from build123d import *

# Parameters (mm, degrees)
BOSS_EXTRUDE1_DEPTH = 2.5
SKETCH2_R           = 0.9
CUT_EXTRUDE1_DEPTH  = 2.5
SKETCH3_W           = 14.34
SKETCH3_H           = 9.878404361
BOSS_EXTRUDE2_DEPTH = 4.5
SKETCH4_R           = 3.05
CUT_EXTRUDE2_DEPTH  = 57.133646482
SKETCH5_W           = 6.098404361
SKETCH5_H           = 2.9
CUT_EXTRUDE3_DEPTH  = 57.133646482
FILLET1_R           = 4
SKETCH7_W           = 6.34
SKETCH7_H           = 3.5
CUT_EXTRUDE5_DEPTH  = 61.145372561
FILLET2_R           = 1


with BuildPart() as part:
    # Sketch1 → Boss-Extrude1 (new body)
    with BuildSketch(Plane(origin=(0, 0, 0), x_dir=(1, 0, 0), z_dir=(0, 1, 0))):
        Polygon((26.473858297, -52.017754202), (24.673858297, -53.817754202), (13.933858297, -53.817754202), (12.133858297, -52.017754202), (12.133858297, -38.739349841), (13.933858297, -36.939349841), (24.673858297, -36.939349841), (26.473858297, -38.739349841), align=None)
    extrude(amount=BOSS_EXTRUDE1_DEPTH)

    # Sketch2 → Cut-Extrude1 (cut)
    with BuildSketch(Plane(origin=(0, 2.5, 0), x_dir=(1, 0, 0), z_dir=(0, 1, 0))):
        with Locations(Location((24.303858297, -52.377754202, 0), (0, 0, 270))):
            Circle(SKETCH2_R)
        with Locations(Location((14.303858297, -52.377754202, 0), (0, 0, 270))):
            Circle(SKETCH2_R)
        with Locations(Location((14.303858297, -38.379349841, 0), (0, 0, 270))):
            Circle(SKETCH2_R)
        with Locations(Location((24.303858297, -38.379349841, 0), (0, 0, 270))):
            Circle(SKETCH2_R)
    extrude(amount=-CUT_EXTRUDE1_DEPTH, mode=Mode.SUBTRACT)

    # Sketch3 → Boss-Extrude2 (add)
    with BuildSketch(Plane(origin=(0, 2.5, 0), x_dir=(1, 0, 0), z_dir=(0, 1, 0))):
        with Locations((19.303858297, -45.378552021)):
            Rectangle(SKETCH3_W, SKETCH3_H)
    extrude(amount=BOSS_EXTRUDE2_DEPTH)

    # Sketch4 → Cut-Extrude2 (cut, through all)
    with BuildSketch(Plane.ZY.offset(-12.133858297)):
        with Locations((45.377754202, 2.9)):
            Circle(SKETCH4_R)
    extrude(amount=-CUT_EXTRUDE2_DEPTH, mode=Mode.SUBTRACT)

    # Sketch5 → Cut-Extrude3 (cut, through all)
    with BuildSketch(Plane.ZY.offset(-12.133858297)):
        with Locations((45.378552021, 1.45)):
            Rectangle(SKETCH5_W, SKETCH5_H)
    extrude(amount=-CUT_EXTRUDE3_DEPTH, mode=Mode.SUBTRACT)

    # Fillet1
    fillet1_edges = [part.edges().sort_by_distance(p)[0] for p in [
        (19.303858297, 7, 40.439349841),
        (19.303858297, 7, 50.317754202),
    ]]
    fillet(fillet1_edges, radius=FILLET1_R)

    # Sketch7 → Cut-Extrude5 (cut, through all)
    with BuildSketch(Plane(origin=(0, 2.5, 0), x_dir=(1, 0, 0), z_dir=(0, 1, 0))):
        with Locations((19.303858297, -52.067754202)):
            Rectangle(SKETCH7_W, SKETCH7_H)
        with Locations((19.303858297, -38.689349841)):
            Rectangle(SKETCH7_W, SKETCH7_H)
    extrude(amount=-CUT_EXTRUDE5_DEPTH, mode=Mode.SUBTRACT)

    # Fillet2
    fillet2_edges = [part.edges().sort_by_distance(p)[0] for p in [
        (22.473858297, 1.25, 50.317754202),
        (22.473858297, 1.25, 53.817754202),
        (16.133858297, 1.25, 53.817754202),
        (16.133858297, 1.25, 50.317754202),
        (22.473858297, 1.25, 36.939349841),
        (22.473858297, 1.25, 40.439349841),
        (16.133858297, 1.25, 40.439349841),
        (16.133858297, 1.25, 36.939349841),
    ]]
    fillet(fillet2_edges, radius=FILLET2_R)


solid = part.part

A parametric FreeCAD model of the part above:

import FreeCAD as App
import Part
import Sketcher

V = App.Vector
Q = App.Units.Quantity


def edges_at(feature, points):
    """Names of the edges that pass closest to the given points."""
    edges = feature.Shape.Edges
    near = lambda p: min(range(len(edges)), key=lambda i: edges[i].distToShape(Part.Vertex(*p))[0])
    return sorted({f"Edge{near(p) + 1}" for p in points})

doc = App.newDocument("Part")
body = doc.addObject("PartDesign::Body", "Body")

# Sketch on XZ plane
sketch1 = doc.addObject("Sketcher::SketchObject", "Sketch")
body.addObject(sketch1)
sketch1.AttachmentSupport = (doc.XZ_Plane, [""])
sketch1.MapMode = "FlatFace"
sketch1.addGeometry(Part.LineSegment(V(24.7, 53.8, 0), V(26.5, 52, 0)), False)
sketch1.addGeometry(Part.LineSegment(V(26.5, 52, 0), V(26.5, 38.7, 0)), False)
sketch1.addGeometry(Part.LineSegment(V(26.5, 38.7, 0), V(24.7, 36.9, 0)), False)
sketch1.addGeometry(Part.LineSegment(V(24.7, 36.9, 0), V(13.9, 36.9, 0)), False)
sketch1.addGeometry(Part.LineSegment(V(13.9, 36.9, 0), V(12.1, 38.7, 0)), False)
sketch1.addGeometry(Part.LineSegment(V(12.1, 38.7, 0), V(12.1, 52, 0)), False)
sketch1.addGeometry(Part.LineSegment(V(12.1, 52, 0), V(13.9, 53.8, 0)), False)
sketch1.addGeometry(Part.LineSegment(V(13.9, 53.8, 0), V(24.7, 53.8, 0)), False)
sketch1.addConstraint(Sketcher.Constraint("Coincident", 0, 2, 1, 1))
sketch1.addConstraint(Sketcher.Constraint("Coincident", 1, 2, 2, 1))
sketch1.addConstraint(Sketcher.Constraint("Coincident", 2, 2, 3, 1))
sketch1.addConstraint(Sketcher.Constraint("Coincident", 3, 2, 4, 1))
sketch1.addConstraint(Sketcher.Constraint("Coincident", 4, 2, 5, 1))
sketch1.addConstraint(Sketcher.Constraint("Coincident", 5, 2, 6, 1))
sketch1.addConstraint(Sketcher.Constraint("Coincident", 6, 2, 7, 1))
sketch1.addConstraint(Sketcher.Constraint("Coincident", 7, 2, 0, 1))
sketch1.addConstraint(Sketcher.Constraint("Vertical", 1))
sketch1.addConstraint(Sketcher.Constraint("Horizontal", 3))
sketch1.addConstraint(Sketcher.Constraint("Vertical", 5))
sketch1.addConstraint(Sketcher.Constraint("Horizontal", 7))
sketch1.addConstraint(Sketcher.Constraint("Perpendicular", 0, 2))
sketch1.addConstraint(Sketcher.Constraint("Perpendicular", 2, 4))
sketch1.addConstraint(Sketcher.Constraint("Perpendicular", 4, 6))
sketch1.addConstraint(Sketcher.Constraint("Horizontal", 1, 2, 4, 2))
sketch1.addConstraint(Sketcher.Constraint("Horizontal", 0, 2, 5, 2))
sketch1.addConstraint(Sketcher.Constraint("Vertical", 3, 2, 6, 2))
sketch1.addConstraint(Sketcher.Constraint("Vertical", 2, 2, 7, 2))
sketch1.addConstraint(Sketcher.Constraint("DistanceX", 3, 2, 3, 1, Q("10.74 mm")))
sketch1.addConstraint(Sketcher.Constraint("DistanceX", 2, 2, 1, 2, Q("1.8 mm")))
sketch1.addConstraint(Sketcher.Constraint("DistanceY", 1, 2, 1, 1, Q("13.278404 mm")))
sketch1.addConstraint(Sketcher.Constraint("DistanceX", -1, 1, 0, 2, Q("26.473858 mm")))
sketch1.addConstraint(Sketcher.Constraint("DistanceY", -1, 1, 1, 2, Q("38.73935 mm")))
pad1 = doc.addObject("PartDesign::Pad", "Pad")
body.addObject(pad1)
pad1.Profile = sketch1
pad1.Length = 2.5
pad1.Reversed = True

# Sketch on XZ plane
sketch2 = doc.addObject("Sketcher::SketchObject", "Sketch001")
body.addObject(sketch2)
sketch2.AttachmentSupport = (doc.XZ_Plane, [""])
sketch2.MapMode = "FlatFace"
sketch2.AttachmentOffset = App.Placement(V(0, 0, -2.5), App.Rotation())
sketch2.addGeometry(Part.Circle(V(24.3, 52.4, 0), V(0, 0, 1), 0.9), False)
sketch2.addGeometry(Part.Circle(V(14.3, 52.4, 0), V(0, 0, 1), 0.9), False)
sketch2.addGeometry(Part.Circle(V(14.3, 38.4, 0), V(0, 0, 1), 0.9), False)
sketch2.addGeometry(Part.Circle(V(24.3, 38.4, 0), V(0, 0, 1), 0.9), False)
sketch2.addConstraint(Sketcher.Constraint("Equal", 0, 1))
sketch2.addConstraint(Sketcher.Constraint("Equal", 1, 2))
sketch2.addConstraint(Sketcher.Constraint("Equal", 2, 3))
sketch2.addConstraint(Sketcher.Constraint("Horizontal", 0, 3, 1, 3))
sketch2.addConstraint(Sketcher.Constraint("Horizontal", 2, 3, 3, 3))
sketch2.addConstraint(Sketcher.Constraint("Vertical", 1, 3, 2, 3))
sketch2.addConstraint(Sketcher.Constraint("Vertical", 0, 3, 3, 3))
sketch2.addConstraint(Sketcher.Constraint("Diameter", 0, Q("1.8 mm")))
sketch2.addConstraint(Sketcher.Constraint("DistanceX", 1, 3, 0, 3, Q("10 mm")))
sketch2.addConstraint(Sketcher.Constraint("DistanceX", -1, 1, 0, 3, Q("24.303858 mm")))
sketch2.addConstraint(Sketcher.Constraint("DistanceY", -1, 1, 2, 3, Q("38.37935 mm")))
sketch2.addConstraint(Sketcher.Constraint("DistanceY", -1, 1, 0, 3, Q("52.377754 mm")))
pocket1 = doc.addObject("PartDesign::Pocket", "Pocket")
body.addObject(pocket1)
pocket1.Profile = sketch2
pocket1.Length = 2.5
pocket1.Reversed = True

# Sketch on XZ plane
sketch3 = doc.addObject("Sketcher::SketchObject", "Sketch002")
body.addObject(sketch3)
sketch3.AttachmentSupport = (doc.XZ_Plane, [""])
sketch3.MapMode = "FlatFace"
sketch3.AttachmentOffset = App.Placement(V(0, 0, -2.5), App.Rotation())
sketch3.addGeometry(Part.LineSegment(V(12, 40, 0), V(12, 50, 0)), False)
sketch3.addGeometry(Part.LineSegment(V(12, 50, 0), V(26, 50, 0)), False)
sketch3.addGeometry(Part.LineSegment(V(26, 50, 0), V(26, 40, 0)), False)
sketch3.addGeometry(Part.LineSegment(V(26, 40, 0), V(12, 40, 0)), False)
sketch3.addConstraint(Sketcher.Constraint("Coincident", 0, 2, 1, 1))
sketch3.addConstraint(Sketcher.Constraint("Coincident", 1, 2, 2, 1))
sketch3.addConstraint(Sketcher.Constraint("Coincident", 2, 2, 3, 1))
sketch3.addConstraint(Sketcher.Constraint("Coincident", 3, 2, 0, 1))
sketch3.addConstraint(Sketcher.Constraint("Vertical", 0))
sketch3.addConstraint(Sketcher.Constraint("Horizontal", 1))
sketch3.addConstraint(Sketcher.Constraint("Vertical", 2))
sketch3.addConstraint(Sketcher.Constraint("Horizontal", 3))
sketch3.addConstraint(Sketcher.Constraint("DistanceX", 1, 1, 1, 2, Q("14.34 mm")))
sketch3.addConstraint(Sketcher.Constraint("DistanceY", 0, 1, 0, 2, Q("9.878404 mm")))
sketch3.addConstraint(Sketcher.Constraint("DistanceX", -1, 1, 0, 2, Q("12.133858 mm")))
sketch3.addConstraint(Sketcher.Constraint("DistanceY", -1, 1, 2, 2, Q("40.43935 mm")))
pad2 = doc.addObject("PartDesign::Pad", "Pad001")
body.addObject(pad2)
pad2.Profile = sketch3
pad2.Length = 4.5
pad2.Reversed = True

# Sketch on YZ plane
sketch4 = doc.addObject("Sketcher::SketchObject", "Sketch003")
body.addObject(sketch4)
sketch4.AttachmentSupport = (doc.YZ_Plane, [""])
sketch4.MapMode = "FlatFace"
sketch4.AttachmentOffset = App.Placement(V(0, 0, 12.133858), App.Rotation())
sketch4.addGeometry(Part.Circle(V(2.9, 45.4, 0), V(0, 0, 1), 3), False)
sketch4.addConstraint(Sketcher.Constraint("Diameter", 0, Q("6.1 mm")))
sketch4.addConstraint(Sketcher.Constraint("DistanceX", -1, 1, 0, 3, Q("2.9 mm")))
sketch4.addConstraint(Sketcher.Constraint("DistanceY", -1, 1, 0, 3, Q("45.377754 mm")))
pocket2 = doc.addObject("PartDesign::Pocket", "Pocket001")
body.addObject(pocket2)
pocket2.Profile = sketch4
pocket2.Type = "ThroughAll"
pocket2.Reversed = True

# Sketch on YZ plane
sketch5 = doc.addObject("Sketcher::SketchObject", "Sketch004")
body.addObject(sketch5)
sketch5.AttachmentSupport = (doc.YZ_Plane, [""])
sketch5.MapMode = "FlatFace"
sketch5.AttachmentOffset = App.Placement(V(0, 0, 12.133858), App.Rotation())
sketch5.addGeometry(Part.LineSegment(V(2.9, 42.3, 0), V(0, 42.3, 0)), False)
sketch5.addGeometry(Part.LineSegment(V(0, 42.3, 0), V(0, 48.4, 0)), False)
sketch5.addGeometry(Part.LineSegment(V(0, 48.4, 0), V(2.9, 48.4, 0)), False)
sketch5.addGeometry(Part.LineSegment(V(2.9, 48.4, 0), V(2.9, 42.3, 0)), False)
sketch5.addConstraint(Sketcher.Constraint("Coincident", 0, 2, 1, 1))
sketch5.addConstraint(Sketcher.Constraint("Coincident", 1, 2, 2, 1))
sketch5.addConstraint(Sketcher.Constraint("Coincident", 2, 2, 3, 1))
sketch5.addConstraint(Sketcher.Constraint("Coincident", 3, 2, 0, 1))
sketch5.addConstraint(Sketcher.Constraint("Horizontal", 0))
sketch5.addConstraint(Sketcher.Constraint("Vertical", 1))
sketch5.addConstraint(Sketcher.Constraint("Horizontal", 2))
sketch5.addConstraint(Sketcher.Constraint("Vertical", 3))
sketch5.addConstraint(Sketcher.Constraint("PointOnObject", 0, 2, -2))
sketch5.addConstraint(Sketcher.Constraint("DistanceX", 0, 2, 0, 1, Q("2.9 mm")))
sketch5.addConstraint(Sketcher.Constraint("DistanceY", 1, 1, 1, 2, Q("6.098404 mm")))
sketch5.addConstraint(Sketcher.Constraint("DistanceY", -1, 1, 0, 2, Q("42.32935 mm")))
pocket3 = doc.addObject("PartDesign::Pocket", "Pocket002")
body.addObject(pocket3)
pocket3.Profile = sketch5
pocket3.Type = "ThroughAll"
pocket3.Reversed = True
doc.recompute()

fillet = doc.addObject("PartDesign::Fillet", "Fillet")
body.addObject(fillet)
fillet.Base = (pocket3, edges_at(pocket3, [(19.304, 7, 40.439), (19.304, 7, 50.318)]))
fillet.Radius = 4

# Sketch on XZ plane
sketch6 = doc.addObject("Sketcher::SketchObject", "Sketch005")
body.addObject(sketch6)
sketch6.AttachmentSupport = (doc.XZ_Plane, [""])
sketch6.MapMode = "FlatFace"
sketch6.AttachmentOffset = App.Placement(V(0, 0, -2.5), App.Rotation())
sketch6.addGeometry(Part.LineSegment(V(16.1, 50.3, 0), V(16.1, 53.8, 0)), False)
sketch6.addGeometry(Part.LineSegment(V(16.1, 53.8, 0), V(22.5, 53.8, 0)), False)
sketch6.addGeometry(Part.LineSegment(V(22.5, 53.8, 0), V(22.5, 50.3, 0)), False)
sketch6.addGeometry(Part.LineSegment(V(22.5, 50.3, 0), V(16.1, 50.3, 0)), False)
sketch6.addGeometry(Part.LineSegment(V(16.1, 36.9, 0), V(16.1, 40.4, 0)), False)
sketch6.addGeometry(Part.LineSegment(V(16.1, 40.4, 0), V(22.5, 40.4, 0)), False)
sketch6.addGeometry(Part.LineSegment(V(22.5, 40.4, 0), V(22.5, 36.9, 0)), False)
sketch6.addGeometry(Part.LineSegment(V(22.5, 36.9, 0), V(16.1, 36.9, 0)), False)
sketch6.addConstraint(Sketcher.Constraint("Coincident", 0, 2, 1, 1))
sketch6.addConstraint(Sketcher.Constraint("Coincident", 1, 2, 2, 1))
sketch6.addConstraint(Sketcher.Constraint("Coincident", 2, 2, 3, 1))
sketch6.addConstraint(Sketcher.Constraint("Coincident", 3, 2, 0, 1))
sketch6.addConstraint(Sketcher.Constraint("Coincident", 4, 2, 5, 1))
sketch6.addConstraint(Sketcher.Constraint("Coincident", 5, 2, 6, 1))
sketch6.addConstraint(Sketcher.Constraint("Coincident", 6, 2, 7, 1))
sketch6.addConstraint(Sketcher.Constraint("Coincident", 7, 2, 4, 1))
sketch6.addConstraint(Sketcher.Constraint("Vertical", 0))
sketch6.addConstraint(Sketcher.Constraint("Horizontal", 1))
sketch6.addConstraint(Sketcher.Constraint("Vertical", 2))
sketch6.addConstraint(Sketcher.Constraint("Horizontal", 3))
sketch6.addConstraint(Sketcher.Constraint("Vertical", 4))
sketch6.addConstraint(Sketcher.Constraint("Horizontal", 5))
sketch6.addConstraint(Sketcher.Constraint("Vertical", 6))
sketch6.addConstraint(Sketcher.Constraint("Horizontal", 7))
sketch6.addConstraint(Sketcher.Constraint("Vertical", 3, 2, 4, 2))
sketch6.addConstraint(Sketcher.Constraint("Vertical", 2, 2, 5, 2))
sketch6.addConstraint(Sketcher.Constraint("Equal", 2, 4))
sketch6.addConstraint(Sketcher.Constraint("DistanceY", 0, 1, 0, 2, Q("3.5 mm")))
sketch6.addConstraint(Sketcher.Constraint("DistanceX", 1, 1, 1, 2, Q("6.34 mm")))
sketch6.addConstraint(Sketcher.Constraint("DistanceX", -1, 1, 0, 2, Q("16.133858 mm")))
sketch6.addConstraint(Sketcher.Constraint("DistanceY", -1, 1, 4, 2, Q("40.43935 mm")))
sketch6.addConstraint(Sketcher.Constraint("DistanceY", -1, 1, 0, 2, Q("53.817754 mm")))
pocket4 = doc.addObject("PartDesign::Pocket", "Pocket003")
body.addObject(pocket4)
pocket4.Profile = sketch6
pocket4.Type = "ThroughAll"
pocket4.Reversed = True
doc.recompute()

fillet2 = doc.addObject("PartDesign::Fillet", "Fillet001")
body.addObject(fillet2)
fillet2.Base = (pocket4, edges_at(pocket4, [
    (22.474, 1.25, 50.318),
    (22.474, 1.25, 53.818),
    (16.134, 1.25, 53.818),
    (16.134, 1.25, 50.318),
    (22.474, 1.25, 36.939),
    (22.474, 1.25, 40.439),
    (16.134, 1.25, 40.439),
    (16.134, 1.25, 36.939),
]))
fillet2.Radius = 1

doc.recompute()
